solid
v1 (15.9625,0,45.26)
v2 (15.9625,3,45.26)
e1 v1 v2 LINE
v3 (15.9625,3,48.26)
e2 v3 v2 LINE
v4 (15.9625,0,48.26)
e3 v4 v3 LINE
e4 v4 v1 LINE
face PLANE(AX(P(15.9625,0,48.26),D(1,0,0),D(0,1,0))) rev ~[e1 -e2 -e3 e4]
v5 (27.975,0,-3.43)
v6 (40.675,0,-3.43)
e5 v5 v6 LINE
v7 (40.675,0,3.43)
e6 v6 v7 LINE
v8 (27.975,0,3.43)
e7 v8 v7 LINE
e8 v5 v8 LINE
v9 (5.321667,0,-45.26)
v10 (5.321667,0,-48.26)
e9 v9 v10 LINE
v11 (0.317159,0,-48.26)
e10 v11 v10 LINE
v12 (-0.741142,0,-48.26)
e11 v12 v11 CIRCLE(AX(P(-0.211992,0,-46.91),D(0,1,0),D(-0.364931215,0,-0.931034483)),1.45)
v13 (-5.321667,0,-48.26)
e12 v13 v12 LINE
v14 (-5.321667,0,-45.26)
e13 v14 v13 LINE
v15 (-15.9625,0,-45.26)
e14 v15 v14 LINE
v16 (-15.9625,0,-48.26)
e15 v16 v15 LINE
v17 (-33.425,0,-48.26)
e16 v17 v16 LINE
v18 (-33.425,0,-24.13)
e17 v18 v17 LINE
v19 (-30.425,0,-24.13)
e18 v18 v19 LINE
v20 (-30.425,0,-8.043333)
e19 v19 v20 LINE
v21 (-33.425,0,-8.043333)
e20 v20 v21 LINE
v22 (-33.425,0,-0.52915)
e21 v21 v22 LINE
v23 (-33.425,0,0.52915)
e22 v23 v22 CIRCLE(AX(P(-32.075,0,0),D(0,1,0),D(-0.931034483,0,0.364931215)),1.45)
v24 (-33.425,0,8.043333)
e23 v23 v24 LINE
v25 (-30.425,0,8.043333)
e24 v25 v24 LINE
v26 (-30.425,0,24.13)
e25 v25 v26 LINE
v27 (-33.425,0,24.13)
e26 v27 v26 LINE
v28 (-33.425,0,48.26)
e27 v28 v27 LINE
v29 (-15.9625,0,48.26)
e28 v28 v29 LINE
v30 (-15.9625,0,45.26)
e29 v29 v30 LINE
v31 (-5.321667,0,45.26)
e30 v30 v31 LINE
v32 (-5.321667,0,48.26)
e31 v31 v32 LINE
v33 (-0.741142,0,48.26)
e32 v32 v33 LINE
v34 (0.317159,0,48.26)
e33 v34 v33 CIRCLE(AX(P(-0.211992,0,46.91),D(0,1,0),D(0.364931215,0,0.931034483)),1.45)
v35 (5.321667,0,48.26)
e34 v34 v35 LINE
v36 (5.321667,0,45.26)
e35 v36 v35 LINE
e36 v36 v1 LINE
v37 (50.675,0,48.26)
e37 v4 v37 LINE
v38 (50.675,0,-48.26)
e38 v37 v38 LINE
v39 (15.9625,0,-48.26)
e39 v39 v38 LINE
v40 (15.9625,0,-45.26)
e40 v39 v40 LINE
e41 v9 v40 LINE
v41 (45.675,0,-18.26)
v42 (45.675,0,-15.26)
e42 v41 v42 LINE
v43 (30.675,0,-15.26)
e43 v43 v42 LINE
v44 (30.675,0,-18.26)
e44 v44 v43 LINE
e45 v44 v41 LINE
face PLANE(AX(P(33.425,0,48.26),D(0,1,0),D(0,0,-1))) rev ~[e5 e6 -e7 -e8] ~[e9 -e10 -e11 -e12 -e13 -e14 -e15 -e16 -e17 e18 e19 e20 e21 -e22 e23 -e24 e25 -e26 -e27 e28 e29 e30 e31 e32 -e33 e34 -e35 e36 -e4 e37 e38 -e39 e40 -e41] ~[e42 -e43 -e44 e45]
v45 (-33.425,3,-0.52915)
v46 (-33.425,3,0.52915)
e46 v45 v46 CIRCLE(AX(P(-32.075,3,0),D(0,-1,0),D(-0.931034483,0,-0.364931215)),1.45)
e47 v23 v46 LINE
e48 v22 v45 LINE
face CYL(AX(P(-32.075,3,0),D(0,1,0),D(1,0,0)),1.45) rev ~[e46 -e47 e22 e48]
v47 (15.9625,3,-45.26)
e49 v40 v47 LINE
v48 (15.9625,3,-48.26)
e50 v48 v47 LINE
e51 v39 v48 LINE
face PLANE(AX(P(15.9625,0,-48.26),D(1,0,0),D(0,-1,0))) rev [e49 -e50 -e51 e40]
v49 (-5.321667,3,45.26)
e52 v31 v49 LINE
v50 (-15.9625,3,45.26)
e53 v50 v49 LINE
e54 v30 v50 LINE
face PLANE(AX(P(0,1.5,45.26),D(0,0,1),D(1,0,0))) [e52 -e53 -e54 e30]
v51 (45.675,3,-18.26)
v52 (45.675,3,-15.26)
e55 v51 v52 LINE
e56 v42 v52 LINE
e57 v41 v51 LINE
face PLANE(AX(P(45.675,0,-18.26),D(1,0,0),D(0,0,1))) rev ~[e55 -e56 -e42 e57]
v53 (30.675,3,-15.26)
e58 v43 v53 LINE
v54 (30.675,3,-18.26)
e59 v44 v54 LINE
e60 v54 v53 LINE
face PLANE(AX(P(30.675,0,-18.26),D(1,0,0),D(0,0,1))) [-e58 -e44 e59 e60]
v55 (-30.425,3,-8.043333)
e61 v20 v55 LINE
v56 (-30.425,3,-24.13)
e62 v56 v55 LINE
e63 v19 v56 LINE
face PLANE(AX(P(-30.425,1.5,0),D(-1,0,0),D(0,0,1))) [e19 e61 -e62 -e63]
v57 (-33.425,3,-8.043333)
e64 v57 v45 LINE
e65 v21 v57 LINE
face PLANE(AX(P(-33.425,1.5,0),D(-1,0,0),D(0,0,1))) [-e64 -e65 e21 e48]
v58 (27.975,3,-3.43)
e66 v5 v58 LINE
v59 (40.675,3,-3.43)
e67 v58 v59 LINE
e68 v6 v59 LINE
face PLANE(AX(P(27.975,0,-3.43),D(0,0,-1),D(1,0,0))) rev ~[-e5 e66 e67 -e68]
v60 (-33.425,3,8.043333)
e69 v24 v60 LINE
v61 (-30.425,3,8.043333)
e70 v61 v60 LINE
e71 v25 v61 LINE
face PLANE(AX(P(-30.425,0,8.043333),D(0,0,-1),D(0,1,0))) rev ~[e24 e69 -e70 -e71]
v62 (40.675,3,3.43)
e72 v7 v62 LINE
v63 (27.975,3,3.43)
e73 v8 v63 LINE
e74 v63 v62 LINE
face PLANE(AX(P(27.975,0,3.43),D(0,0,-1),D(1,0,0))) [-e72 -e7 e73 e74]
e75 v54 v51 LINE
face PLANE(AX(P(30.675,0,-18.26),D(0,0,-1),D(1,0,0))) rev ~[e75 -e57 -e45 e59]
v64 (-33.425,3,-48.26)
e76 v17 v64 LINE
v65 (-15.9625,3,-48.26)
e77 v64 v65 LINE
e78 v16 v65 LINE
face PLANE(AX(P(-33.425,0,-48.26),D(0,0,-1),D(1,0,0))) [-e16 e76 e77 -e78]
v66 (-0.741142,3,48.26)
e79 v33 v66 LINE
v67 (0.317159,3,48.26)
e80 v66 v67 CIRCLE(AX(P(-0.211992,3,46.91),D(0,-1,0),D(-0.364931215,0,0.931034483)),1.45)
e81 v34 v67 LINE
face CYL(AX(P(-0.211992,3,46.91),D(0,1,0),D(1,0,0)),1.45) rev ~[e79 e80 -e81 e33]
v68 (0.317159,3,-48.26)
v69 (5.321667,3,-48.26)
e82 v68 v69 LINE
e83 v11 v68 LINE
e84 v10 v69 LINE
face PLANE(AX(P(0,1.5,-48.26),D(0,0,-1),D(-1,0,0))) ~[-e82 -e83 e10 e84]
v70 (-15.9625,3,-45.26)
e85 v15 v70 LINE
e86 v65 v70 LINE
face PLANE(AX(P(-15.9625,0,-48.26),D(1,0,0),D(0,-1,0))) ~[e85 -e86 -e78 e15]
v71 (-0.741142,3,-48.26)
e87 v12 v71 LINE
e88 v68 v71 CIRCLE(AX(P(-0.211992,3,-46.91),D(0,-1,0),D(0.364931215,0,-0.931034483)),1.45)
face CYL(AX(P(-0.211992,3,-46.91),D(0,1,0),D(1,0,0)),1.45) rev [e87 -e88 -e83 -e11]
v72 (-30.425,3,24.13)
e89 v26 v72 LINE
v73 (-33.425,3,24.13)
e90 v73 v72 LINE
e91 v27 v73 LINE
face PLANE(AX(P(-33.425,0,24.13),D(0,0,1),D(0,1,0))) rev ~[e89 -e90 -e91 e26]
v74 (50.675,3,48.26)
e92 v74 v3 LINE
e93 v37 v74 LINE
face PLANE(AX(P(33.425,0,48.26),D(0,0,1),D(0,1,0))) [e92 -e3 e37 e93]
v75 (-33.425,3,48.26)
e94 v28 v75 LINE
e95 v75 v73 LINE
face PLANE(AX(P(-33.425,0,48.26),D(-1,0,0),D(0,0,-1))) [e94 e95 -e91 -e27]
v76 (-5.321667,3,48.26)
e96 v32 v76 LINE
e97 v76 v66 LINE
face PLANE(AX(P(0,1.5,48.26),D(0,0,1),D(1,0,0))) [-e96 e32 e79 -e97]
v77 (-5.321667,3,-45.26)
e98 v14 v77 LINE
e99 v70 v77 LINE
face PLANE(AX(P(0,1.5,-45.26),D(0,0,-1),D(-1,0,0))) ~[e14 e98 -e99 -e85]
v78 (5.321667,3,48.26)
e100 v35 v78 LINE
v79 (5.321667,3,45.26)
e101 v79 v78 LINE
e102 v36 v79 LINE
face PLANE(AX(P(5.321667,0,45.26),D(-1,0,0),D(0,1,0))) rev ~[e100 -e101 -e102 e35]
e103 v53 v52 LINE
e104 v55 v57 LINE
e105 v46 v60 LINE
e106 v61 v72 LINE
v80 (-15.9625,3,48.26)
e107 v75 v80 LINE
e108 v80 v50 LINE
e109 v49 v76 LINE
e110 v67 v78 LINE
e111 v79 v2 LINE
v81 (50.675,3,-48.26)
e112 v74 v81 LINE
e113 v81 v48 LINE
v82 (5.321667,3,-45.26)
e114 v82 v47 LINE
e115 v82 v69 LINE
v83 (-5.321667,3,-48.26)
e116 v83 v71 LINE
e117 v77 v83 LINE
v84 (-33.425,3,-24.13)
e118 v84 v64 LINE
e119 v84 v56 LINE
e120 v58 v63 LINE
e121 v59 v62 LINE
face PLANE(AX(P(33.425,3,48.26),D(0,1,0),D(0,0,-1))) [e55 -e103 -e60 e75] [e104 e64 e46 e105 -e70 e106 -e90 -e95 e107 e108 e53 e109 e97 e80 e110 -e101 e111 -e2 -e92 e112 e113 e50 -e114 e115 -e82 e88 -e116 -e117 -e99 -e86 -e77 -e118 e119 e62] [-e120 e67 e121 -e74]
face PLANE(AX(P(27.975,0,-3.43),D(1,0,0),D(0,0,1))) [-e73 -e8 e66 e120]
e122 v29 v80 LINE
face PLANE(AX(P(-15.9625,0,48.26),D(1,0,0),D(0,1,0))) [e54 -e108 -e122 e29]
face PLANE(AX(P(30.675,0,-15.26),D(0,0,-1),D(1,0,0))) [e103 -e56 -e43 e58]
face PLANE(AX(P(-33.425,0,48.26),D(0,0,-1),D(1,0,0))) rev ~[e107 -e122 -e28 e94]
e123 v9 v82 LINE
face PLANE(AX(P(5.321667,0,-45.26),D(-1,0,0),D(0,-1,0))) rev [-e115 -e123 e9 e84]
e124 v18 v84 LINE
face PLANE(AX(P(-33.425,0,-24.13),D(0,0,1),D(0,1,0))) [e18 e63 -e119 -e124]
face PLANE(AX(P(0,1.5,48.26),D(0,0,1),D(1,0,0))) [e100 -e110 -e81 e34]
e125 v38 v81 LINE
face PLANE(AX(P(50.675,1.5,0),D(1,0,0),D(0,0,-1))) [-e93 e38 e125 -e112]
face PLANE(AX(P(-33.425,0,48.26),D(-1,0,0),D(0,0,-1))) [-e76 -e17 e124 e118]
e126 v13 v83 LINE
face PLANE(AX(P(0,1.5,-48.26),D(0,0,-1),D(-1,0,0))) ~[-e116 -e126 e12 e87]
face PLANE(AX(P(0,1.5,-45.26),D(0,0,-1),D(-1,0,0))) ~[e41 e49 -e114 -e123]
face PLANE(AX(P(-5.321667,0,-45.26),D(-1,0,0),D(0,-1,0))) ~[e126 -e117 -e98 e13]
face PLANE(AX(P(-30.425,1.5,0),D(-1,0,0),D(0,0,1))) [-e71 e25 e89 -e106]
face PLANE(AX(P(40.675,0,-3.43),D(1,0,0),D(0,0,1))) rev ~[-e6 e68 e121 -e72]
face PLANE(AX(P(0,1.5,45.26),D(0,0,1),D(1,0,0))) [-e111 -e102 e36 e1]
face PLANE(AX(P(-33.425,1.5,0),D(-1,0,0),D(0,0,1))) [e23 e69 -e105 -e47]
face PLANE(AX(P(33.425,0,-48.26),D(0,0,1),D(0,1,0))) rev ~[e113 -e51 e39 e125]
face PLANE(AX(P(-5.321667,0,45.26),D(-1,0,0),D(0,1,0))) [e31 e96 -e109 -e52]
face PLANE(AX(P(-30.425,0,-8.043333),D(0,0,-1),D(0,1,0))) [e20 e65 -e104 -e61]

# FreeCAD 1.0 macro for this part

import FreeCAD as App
import Part
import Sketcher
from FreeCAD import Vector

doc = App.newDocument("Part")
body = doc.addObject("PartDesign::Body", "Body")

# Sketch on XZ plane
sketch1 = body.newObject("Sketcher::SketchObject", "Sketch")
sketch1.AttachmentSupport = (doc.getObject("XZ_Plane"), [""])
sketch1.MapMode = "FlatFace"
sketch1.addGeometry([
    Part.LineSegment(Vector(-33.425, -48.26, 0), Vector(-33.425, 48.26, 0)),
    Part.LineSegment(Vector(-33.425, 48.26, 0), Vector(33.425, 48.26, 0)),
    Part.LineSegment(Vector(33.425, 48.26, 0), Vector(33.425, -48.26, 0)),
    Part.LineSegment(Vector(33.425, -48.26, 0), Vector(-33.425, -48.26, 0)),
], False)
sketch1.addConstraint([
    Sketcher.Constraint("Coincident", 0, 2, 1, 1),
    Sketcher.Constraint("Coincident", 1, 2, 2, 1),
    Sketcher.Constraint("Coincident", 2, 2, 3, 1),
    Sketcher.Constraint("Coincident", 3, 2, 0, 1),
    Sketcher.Constraint("Vertical", 0),
    Sketcher.Constraint("Horizontal", 1),
    Sketcher.Constraint("Vertical", 2),
    Sketcher.Constraint("Horizontal", 3),
    Sketcher.Constraint("Symmetric", 0, 2, 2, 2, -1, 1),
    Sketcher.Constraint("DistanceX", 1, 1, 1, 2, 66.85),
    Sketcher.Constraint("DistanceY", 0, 1, 0, 2, 96.52),
])
pad1 = body.newObject("PartDesign::Pad", "Pad")
pad1.Profile = sketch1
pad1.Length = 3
pad1.Reversed = True

# Sketch on XY plane
sketch2 = body.newObject("Sketcher::SketchObject", "Sketch001")
sketch2.AttachmentSupport = (doc.getObject("XY_Plane"), [""])
sketch2.MapMode = "FlatFace"
sketch2.AttachmentOffset = App.Placement(Vector(0, 0, 48.26), App.Rotation())
sketch2.addGeometry([
    Part.LineSegment(Vector(-15.9625, 3, 0), Vector(-15.9625, 0, 0)),
    Part.LineSegment(Vector(-15.9625, 0, 0), Vector(15.9625, 0, 0)),
    Part.LineSegment(Vector(15.9625, 0, 0), Vector(15.9625, 3, 0)),
    Part.LineSegment(Vector(15.9625, 3, 0), Vector(-15.9625, 3, 0)),
], False)
sketch2.addConstraint([
    Sketcher.Constraint("Coincident", 0, 2, 1, 1),
    Sketcher.Constraint("Coincident", 1, 2, 2, 1),
    Sketcher.Constraint("Coincident", 2, 2, 3, 1),
    Sketcher.Constraint("Coincident", 3, 2, 0, 1),
    Sketcher.Constraint("Vertical", 0),
    Sketcher.Constraint("Horizontal", 1),
    Sketcher.Constraint("Vertical", 2),
    Sketcher.Constraint("Horizontal", 3),
    Sketcher.Constraint("Symmetric", 0, 2, 1, 2, -1, 1),
    Sketcher.Constraint("DistanceY", 0, 2, 0, 1, 3.0),
    Sketcher.Constraint("DistanceX", 1, 1, 1, 2, 31.925),
])
pocket1 = body.newObject("PartDesign::Pocket", "Pocket")
pocket1.Profile = sketch2
pocket1.Length = 3
doc.recompute()

mirrored = body.newObject("PartDesign::Mirrored", "Mirrored")
mirrored.Originals = [pocket1]
mirrored.MirrorPlane = (doc.getObject("XY_Plane"), [""])
body.Tip = mirrored

# Sketch on YZ plane
sketch3 = body.newObject("Sketcher::SketchObject", "Sketch002")
sketch3.AttachmentSupport = (doc.getObject("YZ_Plane"), [""])
sketch3.MapMode = "FlatFace"
sketch3.AttachmentOffset = App.Placement(Vector(0, 0, -33.425), App.Rotation())
sketch3.addGeometry([
    Part.LineSegment(Vector(3, -24.13, 0), Vector(0, -24.13, 0)),
    Part.LineSegment(Vector(0, -24.13, 0), Vector(0, 24.13, 0)),
    Part.LineSegment(Vector(0, 24.13, 0), Vector(3, 24.13, 0)),
    Part.LineSegment(Vector(3, 24.13, 0), Vector(3, -24.13, 0)),
], False)
sketch3.addConstraint([
    Sketcher.Constraint("Coincident", 0, 2, 1, 1),
    Sketcher.Constraint("Coincident", 1, 2, 2, 1),
    Sketcher.Constraint("Coincident", 2, 2, 3, 1),
    Sketcher.Constraint("Coincident", 3, 2, 0, 1),
    Sketcher.Constraint("Horizontal", 0),
    Sketcher.Constraint("Vertical", 1),
    Sketcher.Constraint("Horizontal", 2),
    Sketcher.Constraint("Vertical", 3),
    Sketcher.Constraint("Symmetric", 0, 2, 1, 2, -1, 1),
    Sketcher.Constraint("DistanceX", 0, 2, 0, 1, 3.0),
    Sketcher.Constraint("DistanceY", 1, 1, 1, 2, 48.26),
])
pocket2 = body.newObject("PartDesign::Pocket", "Pocket001")
pocket2.Profile = sketch3
pocket2.Length = 3
pocket2.Reversed = True

# Sketch on XY plane
sketch4 = body.newObject("Sketcher::SketchObject", "Sketch003")
sketch4.AttachmentSupport = (doc.getObject("XY_Plane"), [""])
sketch4.MapMode = "FlatFace"
sketch4.AttachmentOffset = App.Placement(Vector(0, 0, 45.26), App.Rotation())
sketch4.addGeometry([
    Part.LineSegment(Vector(-5.321667, 3, 0), Vector(-5.321667, 0, 0)),
    Part.LineSegment(Vector(-5.321667, 0, 0), Vector(5.321667, 0, 0)),
    Part.LineSegment(Vector(5.321667, 0, 0), Vector(5.321667, 3, 0)),
    Part.LineSegment(Vector(5.321667, 3, 0), Vector(-5.321667, 3, 0)),
], False)
sketch4.addConstraint([
    Sketcher.Constraint("Coincident", 0, 2, 1, 1),
    Sketcher.Constraint("Coincident", 1, 2, 2, 1),
    Sketcher.Constraint("Coincident", 2, 2, 3, 1),
    Sketcher.Constraint("Coincident", 3, 2, 0, 1),
    Sketcher.Constraint("Vertical", 0),
    Sketcher.Constraint("Horizontal", 1),
    Sketcher.Constraint("Vertical", 2),
    Sketcher.Constraint("Horizontal", 3),
    Sketcher.Constraint("Symmetric", 0, 2, 1, 2, -1, 1),
    Sketcher.Constraint("DistanceY", 0, 2, 0, 1, 3.0),
    Sketcher.Constraint("DistanceX", 1, 1, 1, 2, 10.643333),
])
pad2 = body.newObject("PartDesign::Pad", "Pad001")
pad2.Profile = sketch4
pad2.Length = 3
doc.recompute()

mirrored2 = body.newObject("PartDesign::Mirrored", "Mirrored001")
mirrored2.Originals = [pad2]
mirrored2.MirrorPlane = (doc.getObject("XY_Plane"), [""])
body.Tip = mirrored2

# Sketch on YZ plane
sketch5 = body.newObject("Sketcher::SketchObject", "Sketch004")
sketch5.AttachmentSupport = (doc.getObject("YZ_Plane"), [""])
sketch5.MapMode = "FlatFace"
sketch5.AttachmentOffset = App.Placement(Vector(0, 0, -30.425), App.Rotation())
sketch5.addGeometry([
    Part.LineSegment(Vector(3, -8.043333, 0), Vector(0, -8.043333, 0)),
    Part.LineSegment(Vector(0, -8.043333, 0), Vector(0, 8.043333, 0)),
    Part.LineSegment(Vector(0, 8.043333, 0), Vector(3, 8.043333, 0)),
    Part.LineSegment(Vector(3, 8.043333, 0), Vector(3, -8.043333, 0)),
], False)
sketch5.addConstraint([
    Sketcher.Constraint("Coincident", 0, 2, 1, 1),
    Sketcher.Constraint("Coincident", 1, 2, 2, 1),
    Sketcher.Constraint("Coincident", 2, 2, 3, 1),
    Sketcher.Constraint("Coincident", 3, 2, 0, 1),
    Sketcher.Constraint("Horizontal", 0),
    Sketcher.Constraint("Vertical", 1),
    Sketcher.Constraint("Horizontal", 2),
    Sketcher.Constraint("Vertical", 3),
    Sketcher.Constraint("Symmetric", 0, 2, 1, 2, -1, 1),
    Sketcher.Constraint("DistanceX", 0, 2, 0, 1, 3.0),
    Sketcher.Constraint("DistanceY", 1, 1, 1, 2, 16.086667),
])
pad3 = body.newObject("PartDesign::Pad", "Pad002")
pad3.Profile = sketch5
pad3.Length = 3
pad3.Reversed = True

# Sketch on XZ plane
sketch6 = body.newObject("Sketcher::SketchObject", "Sketch005")
sketch6.AttachmentSupport = (doc.getObject("XZ_Plane"), [""])
sketch6.MapMode = "FlatFace"
sketch6.AttachmentOffset = App.Placement(Vector(0, 0, -3), App.Rotation())
sketch6.addGeometry(Part.Circle(Vector(-32.075, 0, 0), Vector(0, 0, 1), 1.45), False)
sketch6.addConstraint([
    Sketcher.Constraint("PointOnObject", 0, 3, -1),
    Sketcher.Constraint("Diameter", 0, 2.9),
    Sketcher.Constraint("DistanceX", 0, 3, -1, 1, 32.075),
])
pocket3 = body.newObject("PartDesign::Pocket", "Pocket002")
pocket3.Profile = sketch6
pocket3.Length = 3
pocket3.Reversed = True

# Sketch on XZ plane
sketch7 = body.newObject("Sketcher::SketchObject", "Sketch006")
sketch7.AttachmentSupport = (doc.getObject("XZ_Plane"), [""])
sketch7.MapMode = "FlatFace"
sketch7.AttachmentOffset = App.Placement(Vector(0, 0, -3), App.Rotation())
sketch7.addGeometry(Part.Circle(Vector(-0.211992, 46.91, 0), Vector(0, 0, 1), 1.45), False)
sketch7.addConstraint([
    Sketcher.Constraint("Diameter", 0, 2.9),
    Sketcher.Constraint("DistanceY", -1, 1, 0, 3, 46.91),
    Sketcher.Constraint("DistanceX", 0, 3, -1, 1, 0.211992),
])
pocket4 = body.newObject("PartDesign::Pocket", "Pocket003")
pocket4.Profile = sketch7
pocket4.Length = 3
pocket4.Reversed = True
doc.recompute()

mirrored3 = body.newObject("PartDesign::Mirrored", "Mirrored002")
mirrored3.Originals = [pocket4]
mirrored3.MirrorPlane = (doc.getObject("XY_Plane"), [""])
body.Tip = mirrored3

# Sketch on YZ plane
sketch8 = body.newObject("Sketcher::SketchObject", "Sketch007")
sketch8.AttachmentSupport = (doc.getObject("YZ_Plane"), [""])
sketch8.MapMode = "FlatFace"
sketch8.AttachmentOffset = App.Placement(Vector(0, 0, 33.425), App.Rotation())
sketch8.addGeometry([
    Part.LineSegment(Vector(3, 48.26, 0), Vector(0, 48.26, 0)),
    Part.LineSegment(Vector(0, 48.26, 0), Vector(0, -48.26, 0)),
    Part.LineSegment(Vector(0, -48.26, 0), Vector(3, -48.26, 0)),
    Part.LineSegment(Vector(3, -48.26, 0), Vector(3, 48.26, 0)),
], False)
sketch8.addConstraint([
    Sketcher.Constraint("Coincident", 0, 2, 1, 1),
    Sketcher.Constraint("Coincident", 1, 2, 2, 1),
    Sketcher.Constraint("Coincident", 2, 2, 3, 1),
    Sketcher.Constraint("Coincident", 3, 2, 0, 1),
    Sketcher.Constraint("Horizontal", 0),
    Sketcher.Constraint("Vertical", 1),
    Sketcher.Constraint("Horizontal", 2),
    Sketcher.Constraint("Vertical", 3),
    Sketcher.Constraint("Symmetric", 0, 2, 1, 2, -1, 1),
    Sketcher.Constraint("DistanceX", 0, 2, 0, 1, 3.0),
    Sketcher.Constraint("DistanceY", 1, 2, 1, 1, 96.52),
])
pad4 = body.newObject("PartDesign::Pad", "Pad003")
pad4.Profile = sketch8
pad4.Length = 17.25

# Sketch on XZ plane
sketch9 = body.newObject("Sketcher::SketchObject", "Sketch008")
sketch9.AttachmentSupport = (doc.getObject("XZ_Plane"), [""])
sketch9.MapMode = "FlatFace"
sketch9.addGeometry([
    Part.LineSegment(Vector(27.975, 3.43, 0), Vector(27.975, -3.43, 0)),
    Part.LineSegment(Vector(27.975, -3.43, 0), Vector(40.675, -3.43, 0)),
    Part.LineSegment(Vector(40.675, -3.43, 0), Vector(40.675, 3.43, 0)),
    Part.LineSegment(Vector(40.675, 3.43, 0), Vector(27.975, 3.43, 0)),
], False)
sketch9.addConstraint([
    Sketcher.Constraint("Coincident", 0, 2, 1, 1),
    Sketcher.Constraint("Coincident", 1, 2, 2, 1),
    Sketcher.Constraint("Coincident", 2, 2, 3, 1),
    Sketcher.Constraint("Coincident", 3, 2, 0, 1),
    Sketcher.Constraint("Vertical", 0),
    Sketcher.Constraint("Horizontal", 1),
    Sketcher.Constraint("Vertical", 2),
    Sketcher.Constraint("Horizontal", 3),
    Sketcher.Constraint("DistanceX", 1, 1, 1, 2, 12.7),
    Sketcher.Constraint("DistanceY", 0, 2, 0, 1, 6.86),
    Sketcher.Constraint("DistanceY", 0, 2, -1, 1, 3.43),
    Sketcher.Constraint("DistanceX", -1, 1, 0, 2, 27.975),
])
pocket5 = body.newObject("PartDesign::Pocket", "Pocket004")
pocket5.Profile = sketch9
pocket5.Length = 3

# Sketch on XZ plane
sketch10 = body.newObject("Sketcher::SketchObject", "Sketch009")
sketch10.AttachmentSupport = (doc.getObject("XZ_Plane"), [""])
sketch10.MapMode = "FlatFace"
sketch10.addGeometry([
    Part.LineSegment(Vector(30.675, -15.26, 0), Vector(30.675, -18.26, 0)),
    Part.LineSegment(Vector(30.675, -18.26, 0), Vector(45.675, -18.26, 0)),
    Part.LineSegment(Vector(45.675, -18.26, 0), Vector(45.675, -15.26, 0)),
    Part.LineSegment(Vector(45.675, -15.26, 0), Vector(30.675, -15.26, 0)),
], False)
sketch10.addConstraint([
    Sketcher.Constraint("Coincident", 0, 2, 1, 1),
    Sketcher.Constraint("Coincident", 1, 2, 2, 1),
    Sketcher.Constraint("Coincident", 2, 2, 3, 1),
    Sketcher.Constraint("Coincident", 3, 2, 0, 1),
    Sketcher.Constraint("Vertical", 0),
    Sketcher.Constraint("Horizontal", 1),
    Sketcher.Constraint("Vertical", 2),
    Sketcher.Constraint("Horizontal", 3),
    Sketcher.Constraint("DistanceX", 1, 1, 1, 2, 15.0),
    Sketcher.Constraint("DistanceY", 0, 2, 0, 1, 3.0),
    Sketcher.Constraint("DistanceY", 0, 2, -1, 1, 18.26),
    Sketcher.Constraint("DistanceX", -1, 1, 0, 2, 30.675),
])
pocket6 = body.newObject("PartDesign::Pocket", "Pocket005")
pocket6.Profile = sketch10
pocket6.Length = 3

doc.recompute()
